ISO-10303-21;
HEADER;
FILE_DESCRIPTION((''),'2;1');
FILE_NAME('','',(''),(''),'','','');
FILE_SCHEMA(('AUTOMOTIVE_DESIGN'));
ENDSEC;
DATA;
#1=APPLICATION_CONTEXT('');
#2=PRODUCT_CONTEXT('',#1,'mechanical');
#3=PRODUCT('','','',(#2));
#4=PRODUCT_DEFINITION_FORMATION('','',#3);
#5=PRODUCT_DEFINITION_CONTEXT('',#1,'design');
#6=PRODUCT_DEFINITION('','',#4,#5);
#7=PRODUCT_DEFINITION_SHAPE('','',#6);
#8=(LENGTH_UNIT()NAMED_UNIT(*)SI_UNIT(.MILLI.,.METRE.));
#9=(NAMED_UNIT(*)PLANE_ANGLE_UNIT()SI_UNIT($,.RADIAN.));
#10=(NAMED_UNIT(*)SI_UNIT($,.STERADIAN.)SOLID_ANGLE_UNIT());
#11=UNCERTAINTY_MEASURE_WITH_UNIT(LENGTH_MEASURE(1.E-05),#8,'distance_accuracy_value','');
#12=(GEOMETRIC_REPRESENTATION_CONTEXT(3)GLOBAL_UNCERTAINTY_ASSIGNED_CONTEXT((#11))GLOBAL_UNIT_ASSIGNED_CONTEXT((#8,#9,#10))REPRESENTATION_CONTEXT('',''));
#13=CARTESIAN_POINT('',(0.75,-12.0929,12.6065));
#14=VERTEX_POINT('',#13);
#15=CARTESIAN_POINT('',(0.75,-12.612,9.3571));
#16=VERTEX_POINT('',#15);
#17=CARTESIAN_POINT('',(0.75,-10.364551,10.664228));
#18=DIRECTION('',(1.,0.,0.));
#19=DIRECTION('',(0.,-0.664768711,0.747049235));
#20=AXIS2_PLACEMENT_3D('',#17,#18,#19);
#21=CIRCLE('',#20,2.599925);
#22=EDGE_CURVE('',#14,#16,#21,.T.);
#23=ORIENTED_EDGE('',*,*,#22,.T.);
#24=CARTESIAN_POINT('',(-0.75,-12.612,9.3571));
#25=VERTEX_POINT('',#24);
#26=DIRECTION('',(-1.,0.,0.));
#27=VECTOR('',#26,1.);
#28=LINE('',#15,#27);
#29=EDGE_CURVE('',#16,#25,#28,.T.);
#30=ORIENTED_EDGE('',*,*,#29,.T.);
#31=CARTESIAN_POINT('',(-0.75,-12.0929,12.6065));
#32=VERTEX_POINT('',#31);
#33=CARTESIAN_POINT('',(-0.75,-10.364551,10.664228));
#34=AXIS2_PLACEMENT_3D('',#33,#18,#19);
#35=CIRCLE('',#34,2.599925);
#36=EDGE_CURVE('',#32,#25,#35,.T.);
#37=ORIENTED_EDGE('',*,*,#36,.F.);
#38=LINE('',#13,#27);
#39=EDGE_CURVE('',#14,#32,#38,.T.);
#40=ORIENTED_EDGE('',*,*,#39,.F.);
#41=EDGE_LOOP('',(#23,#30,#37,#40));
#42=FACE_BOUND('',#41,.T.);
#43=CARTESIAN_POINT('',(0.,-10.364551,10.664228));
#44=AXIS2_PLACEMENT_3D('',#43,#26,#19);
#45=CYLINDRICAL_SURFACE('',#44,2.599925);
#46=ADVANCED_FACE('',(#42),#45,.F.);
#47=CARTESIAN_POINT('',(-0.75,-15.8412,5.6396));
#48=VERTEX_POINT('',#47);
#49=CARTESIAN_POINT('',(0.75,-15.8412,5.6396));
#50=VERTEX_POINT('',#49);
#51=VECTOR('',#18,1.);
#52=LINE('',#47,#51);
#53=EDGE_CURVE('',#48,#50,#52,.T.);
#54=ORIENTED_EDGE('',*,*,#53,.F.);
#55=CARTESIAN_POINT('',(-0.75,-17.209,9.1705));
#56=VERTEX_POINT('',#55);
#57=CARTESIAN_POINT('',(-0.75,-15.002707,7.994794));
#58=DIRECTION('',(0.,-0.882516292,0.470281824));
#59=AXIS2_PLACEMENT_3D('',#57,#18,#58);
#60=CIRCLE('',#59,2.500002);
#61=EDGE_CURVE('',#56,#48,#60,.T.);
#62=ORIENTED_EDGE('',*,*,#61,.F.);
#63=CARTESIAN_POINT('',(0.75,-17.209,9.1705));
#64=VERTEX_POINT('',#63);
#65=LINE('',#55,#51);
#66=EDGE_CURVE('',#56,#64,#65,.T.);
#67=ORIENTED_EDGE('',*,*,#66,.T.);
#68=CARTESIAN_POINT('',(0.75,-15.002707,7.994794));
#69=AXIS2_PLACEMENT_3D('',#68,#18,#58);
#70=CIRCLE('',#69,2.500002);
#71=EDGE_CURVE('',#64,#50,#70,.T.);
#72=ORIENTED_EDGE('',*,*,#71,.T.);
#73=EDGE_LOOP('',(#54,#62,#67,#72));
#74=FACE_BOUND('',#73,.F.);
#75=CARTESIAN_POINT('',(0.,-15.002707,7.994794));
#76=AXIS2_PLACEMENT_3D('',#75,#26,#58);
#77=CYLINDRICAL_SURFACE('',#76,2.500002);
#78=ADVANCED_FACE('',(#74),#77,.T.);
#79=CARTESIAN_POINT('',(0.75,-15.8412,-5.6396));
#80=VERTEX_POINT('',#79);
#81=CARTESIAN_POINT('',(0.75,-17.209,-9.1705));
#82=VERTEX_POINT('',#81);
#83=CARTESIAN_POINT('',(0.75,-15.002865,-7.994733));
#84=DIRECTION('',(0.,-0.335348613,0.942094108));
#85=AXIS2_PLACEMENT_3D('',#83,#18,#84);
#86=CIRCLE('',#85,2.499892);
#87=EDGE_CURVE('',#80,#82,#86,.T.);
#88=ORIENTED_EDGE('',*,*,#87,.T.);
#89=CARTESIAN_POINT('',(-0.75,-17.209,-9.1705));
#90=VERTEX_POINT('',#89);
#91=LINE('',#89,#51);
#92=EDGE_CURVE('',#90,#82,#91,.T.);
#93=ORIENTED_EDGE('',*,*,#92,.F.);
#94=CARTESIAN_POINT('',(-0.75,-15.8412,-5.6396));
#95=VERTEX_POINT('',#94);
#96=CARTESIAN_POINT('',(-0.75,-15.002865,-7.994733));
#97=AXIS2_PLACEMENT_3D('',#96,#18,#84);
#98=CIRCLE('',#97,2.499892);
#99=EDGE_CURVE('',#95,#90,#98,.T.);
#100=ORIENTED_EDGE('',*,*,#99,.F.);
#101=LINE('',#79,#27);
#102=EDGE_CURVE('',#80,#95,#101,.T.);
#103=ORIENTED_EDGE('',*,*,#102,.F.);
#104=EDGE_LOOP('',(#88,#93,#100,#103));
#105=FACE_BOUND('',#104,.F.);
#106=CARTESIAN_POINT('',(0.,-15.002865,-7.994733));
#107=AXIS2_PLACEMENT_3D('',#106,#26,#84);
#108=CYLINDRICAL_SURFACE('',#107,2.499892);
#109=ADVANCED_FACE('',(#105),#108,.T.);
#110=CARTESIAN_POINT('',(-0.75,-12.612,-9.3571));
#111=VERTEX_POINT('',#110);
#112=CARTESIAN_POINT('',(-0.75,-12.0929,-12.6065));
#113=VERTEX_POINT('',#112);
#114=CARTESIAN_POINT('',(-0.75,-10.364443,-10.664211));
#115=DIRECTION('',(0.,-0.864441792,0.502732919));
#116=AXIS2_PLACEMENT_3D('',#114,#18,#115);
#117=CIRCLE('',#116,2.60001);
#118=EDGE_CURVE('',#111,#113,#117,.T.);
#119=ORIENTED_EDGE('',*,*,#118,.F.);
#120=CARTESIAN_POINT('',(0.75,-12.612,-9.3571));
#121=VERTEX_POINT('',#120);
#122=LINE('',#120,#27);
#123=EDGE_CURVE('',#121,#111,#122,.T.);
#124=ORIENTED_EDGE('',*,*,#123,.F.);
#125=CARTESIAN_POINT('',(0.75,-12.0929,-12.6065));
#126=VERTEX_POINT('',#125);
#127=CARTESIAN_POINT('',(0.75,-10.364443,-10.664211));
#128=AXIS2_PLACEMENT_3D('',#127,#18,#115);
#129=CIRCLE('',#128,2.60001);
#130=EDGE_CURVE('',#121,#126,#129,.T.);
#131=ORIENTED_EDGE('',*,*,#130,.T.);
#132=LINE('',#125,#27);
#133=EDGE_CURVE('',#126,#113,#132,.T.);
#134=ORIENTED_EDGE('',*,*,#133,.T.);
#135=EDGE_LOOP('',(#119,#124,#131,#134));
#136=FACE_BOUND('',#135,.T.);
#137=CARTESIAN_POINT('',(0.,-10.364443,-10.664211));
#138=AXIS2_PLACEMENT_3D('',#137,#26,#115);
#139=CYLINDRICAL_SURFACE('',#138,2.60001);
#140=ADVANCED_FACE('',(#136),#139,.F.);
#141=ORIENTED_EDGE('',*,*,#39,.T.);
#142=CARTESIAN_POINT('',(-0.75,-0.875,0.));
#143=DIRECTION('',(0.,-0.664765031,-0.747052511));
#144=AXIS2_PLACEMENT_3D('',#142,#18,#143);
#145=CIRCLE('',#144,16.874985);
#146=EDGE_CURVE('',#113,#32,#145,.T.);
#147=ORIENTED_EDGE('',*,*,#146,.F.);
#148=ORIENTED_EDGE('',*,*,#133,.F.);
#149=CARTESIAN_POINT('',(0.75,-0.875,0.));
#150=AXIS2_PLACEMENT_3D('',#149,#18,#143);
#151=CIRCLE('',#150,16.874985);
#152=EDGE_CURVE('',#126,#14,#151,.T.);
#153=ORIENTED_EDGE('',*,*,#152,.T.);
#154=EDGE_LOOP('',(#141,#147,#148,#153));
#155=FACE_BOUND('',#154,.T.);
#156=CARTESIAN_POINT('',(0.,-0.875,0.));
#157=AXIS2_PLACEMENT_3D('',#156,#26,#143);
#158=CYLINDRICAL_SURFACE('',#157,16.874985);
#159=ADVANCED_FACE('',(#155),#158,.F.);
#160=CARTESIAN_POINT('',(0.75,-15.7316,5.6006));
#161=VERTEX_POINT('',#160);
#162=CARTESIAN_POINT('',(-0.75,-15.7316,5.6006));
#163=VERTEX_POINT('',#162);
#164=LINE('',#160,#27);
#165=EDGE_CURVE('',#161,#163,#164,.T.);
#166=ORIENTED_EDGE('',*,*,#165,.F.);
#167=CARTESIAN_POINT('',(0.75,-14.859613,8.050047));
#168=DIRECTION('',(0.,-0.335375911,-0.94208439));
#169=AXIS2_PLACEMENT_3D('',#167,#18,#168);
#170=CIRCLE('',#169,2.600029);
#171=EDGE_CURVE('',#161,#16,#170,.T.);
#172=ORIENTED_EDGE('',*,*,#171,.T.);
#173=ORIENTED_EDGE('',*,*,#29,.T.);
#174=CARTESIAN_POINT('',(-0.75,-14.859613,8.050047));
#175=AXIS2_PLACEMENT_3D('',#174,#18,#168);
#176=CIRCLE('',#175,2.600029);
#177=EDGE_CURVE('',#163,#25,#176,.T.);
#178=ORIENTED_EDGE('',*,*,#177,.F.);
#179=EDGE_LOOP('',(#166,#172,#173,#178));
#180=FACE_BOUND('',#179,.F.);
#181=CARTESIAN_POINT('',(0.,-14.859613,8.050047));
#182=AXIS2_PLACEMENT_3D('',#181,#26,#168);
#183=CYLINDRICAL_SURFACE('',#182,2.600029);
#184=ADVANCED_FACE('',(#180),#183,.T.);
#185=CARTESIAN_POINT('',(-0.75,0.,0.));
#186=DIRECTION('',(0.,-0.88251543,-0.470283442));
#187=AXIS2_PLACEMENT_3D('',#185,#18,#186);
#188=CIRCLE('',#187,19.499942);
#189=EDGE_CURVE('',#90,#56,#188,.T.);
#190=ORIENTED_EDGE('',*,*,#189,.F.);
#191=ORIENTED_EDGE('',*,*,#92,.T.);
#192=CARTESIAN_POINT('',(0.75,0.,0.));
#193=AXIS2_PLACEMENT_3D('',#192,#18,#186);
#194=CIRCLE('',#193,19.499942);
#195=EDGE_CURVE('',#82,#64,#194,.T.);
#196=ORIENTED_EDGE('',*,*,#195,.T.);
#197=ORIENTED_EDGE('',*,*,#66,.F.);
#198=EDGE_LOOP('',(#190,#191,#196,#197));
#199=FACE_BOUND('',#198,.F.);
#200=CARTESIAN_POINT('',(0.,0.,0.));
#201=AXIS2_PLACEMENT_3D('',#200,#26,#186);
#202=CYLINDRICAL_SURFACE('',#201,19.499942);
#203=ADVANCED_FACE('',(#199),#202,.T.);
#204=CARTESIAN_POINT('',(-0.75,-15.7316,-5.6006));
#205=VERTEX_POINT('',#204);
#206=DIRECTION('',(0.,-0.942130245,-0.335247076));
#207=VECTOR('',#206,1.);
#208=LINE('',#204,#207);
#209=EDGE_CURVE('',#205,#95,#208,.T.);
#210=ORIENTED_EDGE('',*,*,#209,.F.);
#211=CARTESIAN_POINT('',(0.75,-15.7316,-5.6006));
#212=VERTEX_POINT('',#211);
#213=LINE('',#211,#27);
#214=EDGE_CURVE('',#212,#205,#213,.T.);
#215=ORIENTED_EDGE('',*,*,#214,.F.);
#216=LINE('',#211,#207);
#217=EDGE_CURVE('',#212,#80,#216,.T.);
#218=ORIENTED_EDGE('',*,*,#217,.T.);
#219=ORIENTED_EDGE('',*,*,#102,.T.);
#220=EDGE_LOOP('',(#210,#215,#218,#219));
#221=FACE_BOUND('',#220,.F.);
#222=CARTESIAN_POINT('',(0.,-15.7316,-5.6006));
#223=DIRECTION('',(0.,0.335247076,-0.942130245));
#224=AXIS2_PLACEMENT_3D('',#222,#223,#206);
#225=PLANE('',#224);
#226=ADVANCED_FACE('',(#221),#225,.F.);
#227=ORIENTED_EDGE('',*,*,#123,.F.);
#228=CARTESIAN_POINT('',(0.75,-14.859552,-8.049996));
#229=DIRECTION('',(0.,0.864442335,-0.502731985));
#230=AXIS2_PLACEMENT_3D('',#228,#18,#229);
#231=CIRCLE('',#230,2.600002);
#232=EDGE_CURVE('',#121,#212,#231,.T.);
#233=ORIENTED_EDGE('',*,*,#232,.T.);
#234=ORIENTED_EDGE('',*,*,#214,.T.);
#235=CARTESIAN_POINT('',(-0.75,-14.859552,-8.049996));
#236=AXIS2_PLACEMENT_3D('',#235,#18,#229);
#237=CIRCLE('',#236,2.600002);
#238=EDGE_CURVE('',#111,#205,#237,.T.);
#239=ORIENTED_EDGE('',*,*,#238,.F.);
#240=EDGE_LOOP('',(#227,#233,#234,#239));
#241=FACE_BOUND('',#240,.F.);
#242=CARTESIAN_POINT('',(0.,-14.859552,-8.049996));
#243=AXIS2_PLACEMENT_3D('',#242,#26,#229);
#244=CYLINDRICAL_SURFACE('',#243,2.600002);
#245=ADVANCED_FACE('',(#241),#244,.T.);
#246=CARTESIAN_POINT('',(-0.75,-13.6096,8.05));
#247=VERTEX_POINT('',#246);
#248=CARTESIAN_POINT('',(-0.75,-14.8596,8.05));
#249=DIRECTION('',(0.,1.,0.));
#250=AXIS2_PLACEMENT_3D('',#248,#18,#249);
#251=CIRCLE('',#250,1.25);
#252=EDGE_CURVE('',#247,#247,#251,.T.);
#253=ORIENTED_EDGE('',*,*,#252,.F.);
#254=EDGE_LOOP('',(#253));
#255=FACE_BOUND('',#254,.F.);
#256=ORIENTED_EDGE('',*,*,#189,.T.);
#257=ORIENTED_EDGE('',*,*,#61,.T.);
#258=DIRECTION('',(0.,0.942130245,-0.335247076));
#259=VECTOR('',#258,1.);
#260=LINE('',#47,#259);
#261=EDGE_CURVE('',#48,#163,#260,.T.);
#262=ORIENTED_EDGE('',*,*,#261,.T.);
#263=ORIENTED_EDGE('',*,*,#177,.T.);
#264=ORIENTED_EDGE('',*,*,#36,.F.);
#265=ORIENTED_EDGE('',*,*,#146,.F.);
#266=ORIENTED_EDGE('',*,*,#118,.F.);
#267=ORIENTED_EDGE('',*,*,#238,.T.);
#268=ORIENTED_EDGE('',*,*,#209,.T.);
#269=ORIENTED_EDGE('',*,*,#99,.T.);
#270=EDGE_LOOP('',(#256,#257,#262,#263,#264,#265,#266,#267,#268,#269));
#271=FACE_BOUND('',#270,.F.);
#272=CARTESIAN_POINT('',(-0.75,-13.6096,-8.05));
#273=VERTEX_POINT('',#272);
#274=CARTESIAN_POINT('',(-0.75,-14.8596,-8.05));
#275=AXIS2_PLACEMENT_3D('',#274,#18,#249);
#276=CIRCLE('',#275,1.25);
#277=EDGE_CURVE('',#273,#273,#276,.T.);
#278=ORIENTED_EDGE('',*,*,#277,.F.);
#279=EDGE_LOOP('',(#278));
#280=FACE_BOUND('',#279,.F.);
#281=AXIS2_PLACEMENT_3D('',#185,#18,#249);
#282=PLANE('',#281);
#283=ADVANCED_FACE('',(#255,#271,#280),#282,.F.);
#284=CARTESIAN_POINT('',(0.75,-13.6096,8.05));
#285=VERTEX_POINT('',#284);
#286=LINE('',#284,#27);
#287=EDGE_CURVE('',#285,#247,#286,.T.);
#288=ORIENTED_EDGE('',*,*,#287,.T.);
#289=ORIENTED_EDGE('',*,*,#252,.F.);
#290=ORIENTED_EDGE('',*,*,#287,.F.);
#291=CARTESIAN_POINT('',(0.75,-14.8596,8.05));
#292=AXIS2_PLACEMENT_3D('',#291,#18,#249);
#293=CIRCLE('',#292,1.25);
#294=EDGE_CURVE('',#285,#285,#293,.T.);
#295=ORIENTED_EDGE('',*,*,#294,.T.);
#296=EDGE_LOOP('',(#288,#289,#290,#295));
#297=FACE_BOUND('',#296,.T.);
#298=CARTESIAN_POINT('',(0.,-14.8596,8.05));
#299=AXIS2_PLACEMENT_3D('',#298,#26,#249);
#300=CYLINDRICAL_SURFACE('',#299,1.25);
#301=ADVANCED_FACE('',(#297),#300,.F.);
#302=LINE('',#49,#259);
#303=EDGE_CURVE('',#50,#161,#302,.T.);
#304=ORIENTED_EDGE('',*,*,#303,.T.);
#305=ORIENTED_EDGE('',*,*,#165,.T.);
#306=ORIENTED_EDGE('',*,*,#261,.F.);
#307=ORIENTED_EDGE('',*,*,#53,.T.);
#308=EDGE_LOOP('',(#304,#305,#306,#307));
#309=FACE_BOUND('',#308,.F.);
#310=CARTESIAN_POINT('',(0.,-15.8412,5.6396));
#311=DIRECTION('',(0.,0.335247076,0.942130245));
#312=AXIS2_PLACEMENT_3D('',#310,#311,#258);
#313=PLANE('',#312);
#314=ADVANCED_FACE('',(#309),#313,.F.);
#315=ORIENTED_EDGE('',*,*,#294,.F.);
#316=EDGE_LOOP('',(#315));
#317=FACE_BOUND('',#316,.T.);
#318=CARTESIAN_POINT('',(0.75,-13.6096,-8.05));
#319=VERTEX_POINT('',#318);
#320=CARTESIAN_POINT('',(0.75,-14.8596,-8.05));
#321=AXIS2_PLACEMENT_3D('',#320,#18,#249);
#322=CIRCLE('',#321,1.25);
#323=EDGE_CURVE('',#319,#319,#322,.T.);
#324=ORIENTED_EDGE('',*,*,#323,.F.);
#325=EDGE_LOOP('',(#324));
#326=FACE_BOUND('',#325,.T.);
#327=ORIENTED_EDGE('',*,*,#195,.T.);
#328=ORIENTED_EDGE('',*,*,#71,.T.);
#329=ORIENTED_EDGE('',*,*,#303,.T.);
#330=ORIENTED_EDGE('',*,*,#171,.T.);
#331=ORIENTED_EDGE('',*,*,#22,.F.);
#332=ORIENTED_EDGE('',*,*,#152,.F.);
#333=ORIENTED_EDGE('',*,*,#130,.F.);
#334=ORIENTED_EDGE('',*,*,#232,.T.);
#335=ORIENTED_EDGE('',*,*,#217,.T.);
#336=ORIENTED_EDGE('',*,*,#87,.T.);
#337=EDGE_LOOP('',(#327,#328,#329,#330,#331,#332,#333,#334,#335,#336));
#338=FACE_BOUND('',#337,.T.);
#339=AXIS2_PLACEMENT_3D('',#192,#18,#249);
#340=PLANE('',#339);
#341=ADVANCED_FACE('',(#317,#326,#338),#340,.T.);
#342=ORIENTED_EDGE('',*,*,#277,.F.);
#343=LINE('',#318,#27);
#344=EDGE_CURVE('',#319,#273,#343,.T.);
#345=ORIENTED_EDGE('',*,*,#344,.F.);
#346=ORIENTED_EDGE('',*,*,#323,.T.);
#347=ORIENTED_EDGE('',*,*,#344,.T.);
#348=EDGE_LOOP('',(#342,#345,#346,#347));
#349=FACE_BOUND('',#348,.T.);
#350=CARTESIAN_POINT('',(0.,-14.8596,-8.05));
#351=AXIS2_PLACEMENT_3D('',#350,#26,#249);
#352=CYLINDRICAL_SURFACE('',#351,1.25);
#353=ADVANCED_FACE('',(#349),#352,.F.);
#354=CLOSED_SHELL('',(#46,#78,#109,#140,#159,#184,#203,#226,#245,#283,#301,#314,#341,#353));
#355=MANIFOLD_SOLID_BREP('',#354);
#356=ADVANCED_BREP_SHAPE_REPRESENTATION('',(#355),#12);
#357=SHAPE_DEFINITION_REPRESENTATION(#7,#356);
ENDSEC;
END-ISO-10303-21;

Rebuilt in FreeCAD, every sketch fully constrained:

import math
import FreeCAD as App
import Part
import Sketcher

doc = App.newDocument("Part")
params = doc.addObject("Spreadsheet::Sheet", "Params")
for row, (alias, value) in enumerate([
    ("sketch1_diameter", "2.5 mm"),
    ("sketch1_radius", "2.5 mm"),
    ("sketch1_radius2", "19.5 mm"),
    ("sketch1_radius3", "2.6 mm"),
    ("pad1_length", "1.5 mm"),
], start=1):
    params.set(f"A{row}", alias)
    params.set(f"B{row}", "=" + value)
    params.setAlias(f"B{row}", alias)

body = doc.addObject("PartDesign::Body", "Body")

sketch1 = body.newObject("Sketcher::SketchObject", "Sketch")
sketch1.AttachmentSupport = (doc.getObject("YZ_Plane"), [""])
sketch1.MapMode = "FlatFace"
sketch1.addGeometry([
    Part.ArcOfCircle(Part.Circle(App.Vector(-15, -7.99, 0), App.Vector(0, 0, 1), 2.5), math.radians(110), math.radians(208)),
    Part.ArcOfCircle(Part.Circle(App.Vector(0, 0, 0), App.Vector(0, 0, 1), 19.5), math.radians(-152), math.radians(152)),
    Part.ArcOfCircle(Part.Circle(App.Vector(-15, 7.99, 0), App.Vector(0, 0, 1), 2.5), math.radians(152), math.radians(250)),
    Part.LineSegment(App.Vector(-15.84, 5.64, 0), App.Vector(-15.73, 5.6, 0)),
    Part.ArcOfCircle(Part.Circle(App.Vector(-14.86, 8.05, 0), App.Vector(0, 0, 1), 2.6), math.radians(-110), math.radians(30)),
    Part.ArcOfCircle(Part.Circle(App.Vector(-10.36, 10.66, 0), App.Vector(0, 0, 1), 2.6), math.radians(132), math.radians(210)),
    Part.ArcOfCircle(Part.Circle(App.Vector(-0.88, 0, 0), App.Vector(0, 0, 1), 16.87), math.radians(-132), math.radians(132)),
    Part.ArcOfCircle(Part.Circle(App.Vector(-10.36, -10.66, 0), App.Vector(0, 0, 1), 2.6), math.radians(150), math.radians(228)),
    Part.ArcOfCircle(Part.Circle(App.Vector(-14.86, -8.05, 0), App.Vector(0, 0, 1), 2.6), math.radians(-30), math.radians(110)),
    Part.LineSegment(App.Vector(-15.73, -5.6, 0), App.Vector(-15.84, -5.64, 0)),
    Part.Circle(App.Vector(-14.86, -8.05, 0), App.Vector(0, 0, 1), 1.25),
    Part.Circle(App.Vector(-14.86, 8.05, 0), App.Vector(0, 0, 1), 1.25),
], False)
sketch1.addConstraint([
    Sketcher.Constraint("Tangent", 0, 2, 1, 1),
    Sketcher.Constraint("Tangent", 1, 2, 2, 1),
    Sketcher.Constraint("Tangent", 2, 2, 3, 1),
    Sketcher.Constraint("Tangent", 3, 2, 4, 1),
    Sketcher.Constraint("Tangent", 4, 2, 5, 2),
    Sketcher.Constraint("Tangent", 5, 1, 6, 2),
    Sketcher.Constraint("Tangent", 6, 1, 7, 2),
    Sketcher.Constraint("Tangent", 7, 1, 8, 1),
    Sketcher.Constraint("Tangent", 8, 2, 9, 1),
    Sketcher.Constraint("Tangent", 9, 2, 0, 1),
    Sketcher.Constraint("Coincident", 1, 3, -1, 1),
    Sketcher.Constraint("Coincident", 10, 3, 8, 3),
    Sketcher.Constraint("Coincident", 11, 3, 4, 3),
    Sketcher.Constraint("Equal", 0, 2),
    Sketcher.Constraint("Equal", 4, 5),
    Sketcher.Constraint("Equal", 5, 7),
    Sketcher.Constraint("Equal", 7, 8),
    Sketcher.Constraint("Equal", 10, 11),
    Sketcher.Constraint("Symmetric", 5, 3, 7, 3, -1),
    Sketcher.Constraint("Symmetric", 3, 2, 8, 2, -1),
    Sketcher.Constraint("Diameter", 10, 2.5),
    Sketcher.Constraint("Radius", 0, 2.5),
    Sketcher.Constraint("Radius", 1, 19.5),
    Sketcher.Constraint("Radius", 4, 2.6),
    Sketcher.Constraint("Radius", 6, 16.875),
    Sketcher.Constraint("DistanceY", 8, 3, 4, 3, 16.1),
    Sketcher.Constraint("DistanceY", 3, 2, 1, 2, 3.57),
    Sketcher.Constraint("DistanceX", 2, 3, 5, 1, 2.91),
    Sketcher.Constraint("DistanceX", 6, 3, -1, 1, 0.875),
])
sketch1.setExpression("Constraints[20]", "Params.sketch1_diameter")
sketch1.setExpression("Constraints[21]", "Params.sketch1_radius")
sketch1.setExpression("Constraints[22]", "Params.sketch1_radius2")
sketch1.setExpression("Constraints[23]", "Params.sketch1_radius3")
pad1 = body.newObject("PartDesign::Pad", "Pad")
pad1.Profile = sketch1
pad1.setExpression("Length", "Params.pad1_length")
pad1.Midplane = True

doc.recompute()
